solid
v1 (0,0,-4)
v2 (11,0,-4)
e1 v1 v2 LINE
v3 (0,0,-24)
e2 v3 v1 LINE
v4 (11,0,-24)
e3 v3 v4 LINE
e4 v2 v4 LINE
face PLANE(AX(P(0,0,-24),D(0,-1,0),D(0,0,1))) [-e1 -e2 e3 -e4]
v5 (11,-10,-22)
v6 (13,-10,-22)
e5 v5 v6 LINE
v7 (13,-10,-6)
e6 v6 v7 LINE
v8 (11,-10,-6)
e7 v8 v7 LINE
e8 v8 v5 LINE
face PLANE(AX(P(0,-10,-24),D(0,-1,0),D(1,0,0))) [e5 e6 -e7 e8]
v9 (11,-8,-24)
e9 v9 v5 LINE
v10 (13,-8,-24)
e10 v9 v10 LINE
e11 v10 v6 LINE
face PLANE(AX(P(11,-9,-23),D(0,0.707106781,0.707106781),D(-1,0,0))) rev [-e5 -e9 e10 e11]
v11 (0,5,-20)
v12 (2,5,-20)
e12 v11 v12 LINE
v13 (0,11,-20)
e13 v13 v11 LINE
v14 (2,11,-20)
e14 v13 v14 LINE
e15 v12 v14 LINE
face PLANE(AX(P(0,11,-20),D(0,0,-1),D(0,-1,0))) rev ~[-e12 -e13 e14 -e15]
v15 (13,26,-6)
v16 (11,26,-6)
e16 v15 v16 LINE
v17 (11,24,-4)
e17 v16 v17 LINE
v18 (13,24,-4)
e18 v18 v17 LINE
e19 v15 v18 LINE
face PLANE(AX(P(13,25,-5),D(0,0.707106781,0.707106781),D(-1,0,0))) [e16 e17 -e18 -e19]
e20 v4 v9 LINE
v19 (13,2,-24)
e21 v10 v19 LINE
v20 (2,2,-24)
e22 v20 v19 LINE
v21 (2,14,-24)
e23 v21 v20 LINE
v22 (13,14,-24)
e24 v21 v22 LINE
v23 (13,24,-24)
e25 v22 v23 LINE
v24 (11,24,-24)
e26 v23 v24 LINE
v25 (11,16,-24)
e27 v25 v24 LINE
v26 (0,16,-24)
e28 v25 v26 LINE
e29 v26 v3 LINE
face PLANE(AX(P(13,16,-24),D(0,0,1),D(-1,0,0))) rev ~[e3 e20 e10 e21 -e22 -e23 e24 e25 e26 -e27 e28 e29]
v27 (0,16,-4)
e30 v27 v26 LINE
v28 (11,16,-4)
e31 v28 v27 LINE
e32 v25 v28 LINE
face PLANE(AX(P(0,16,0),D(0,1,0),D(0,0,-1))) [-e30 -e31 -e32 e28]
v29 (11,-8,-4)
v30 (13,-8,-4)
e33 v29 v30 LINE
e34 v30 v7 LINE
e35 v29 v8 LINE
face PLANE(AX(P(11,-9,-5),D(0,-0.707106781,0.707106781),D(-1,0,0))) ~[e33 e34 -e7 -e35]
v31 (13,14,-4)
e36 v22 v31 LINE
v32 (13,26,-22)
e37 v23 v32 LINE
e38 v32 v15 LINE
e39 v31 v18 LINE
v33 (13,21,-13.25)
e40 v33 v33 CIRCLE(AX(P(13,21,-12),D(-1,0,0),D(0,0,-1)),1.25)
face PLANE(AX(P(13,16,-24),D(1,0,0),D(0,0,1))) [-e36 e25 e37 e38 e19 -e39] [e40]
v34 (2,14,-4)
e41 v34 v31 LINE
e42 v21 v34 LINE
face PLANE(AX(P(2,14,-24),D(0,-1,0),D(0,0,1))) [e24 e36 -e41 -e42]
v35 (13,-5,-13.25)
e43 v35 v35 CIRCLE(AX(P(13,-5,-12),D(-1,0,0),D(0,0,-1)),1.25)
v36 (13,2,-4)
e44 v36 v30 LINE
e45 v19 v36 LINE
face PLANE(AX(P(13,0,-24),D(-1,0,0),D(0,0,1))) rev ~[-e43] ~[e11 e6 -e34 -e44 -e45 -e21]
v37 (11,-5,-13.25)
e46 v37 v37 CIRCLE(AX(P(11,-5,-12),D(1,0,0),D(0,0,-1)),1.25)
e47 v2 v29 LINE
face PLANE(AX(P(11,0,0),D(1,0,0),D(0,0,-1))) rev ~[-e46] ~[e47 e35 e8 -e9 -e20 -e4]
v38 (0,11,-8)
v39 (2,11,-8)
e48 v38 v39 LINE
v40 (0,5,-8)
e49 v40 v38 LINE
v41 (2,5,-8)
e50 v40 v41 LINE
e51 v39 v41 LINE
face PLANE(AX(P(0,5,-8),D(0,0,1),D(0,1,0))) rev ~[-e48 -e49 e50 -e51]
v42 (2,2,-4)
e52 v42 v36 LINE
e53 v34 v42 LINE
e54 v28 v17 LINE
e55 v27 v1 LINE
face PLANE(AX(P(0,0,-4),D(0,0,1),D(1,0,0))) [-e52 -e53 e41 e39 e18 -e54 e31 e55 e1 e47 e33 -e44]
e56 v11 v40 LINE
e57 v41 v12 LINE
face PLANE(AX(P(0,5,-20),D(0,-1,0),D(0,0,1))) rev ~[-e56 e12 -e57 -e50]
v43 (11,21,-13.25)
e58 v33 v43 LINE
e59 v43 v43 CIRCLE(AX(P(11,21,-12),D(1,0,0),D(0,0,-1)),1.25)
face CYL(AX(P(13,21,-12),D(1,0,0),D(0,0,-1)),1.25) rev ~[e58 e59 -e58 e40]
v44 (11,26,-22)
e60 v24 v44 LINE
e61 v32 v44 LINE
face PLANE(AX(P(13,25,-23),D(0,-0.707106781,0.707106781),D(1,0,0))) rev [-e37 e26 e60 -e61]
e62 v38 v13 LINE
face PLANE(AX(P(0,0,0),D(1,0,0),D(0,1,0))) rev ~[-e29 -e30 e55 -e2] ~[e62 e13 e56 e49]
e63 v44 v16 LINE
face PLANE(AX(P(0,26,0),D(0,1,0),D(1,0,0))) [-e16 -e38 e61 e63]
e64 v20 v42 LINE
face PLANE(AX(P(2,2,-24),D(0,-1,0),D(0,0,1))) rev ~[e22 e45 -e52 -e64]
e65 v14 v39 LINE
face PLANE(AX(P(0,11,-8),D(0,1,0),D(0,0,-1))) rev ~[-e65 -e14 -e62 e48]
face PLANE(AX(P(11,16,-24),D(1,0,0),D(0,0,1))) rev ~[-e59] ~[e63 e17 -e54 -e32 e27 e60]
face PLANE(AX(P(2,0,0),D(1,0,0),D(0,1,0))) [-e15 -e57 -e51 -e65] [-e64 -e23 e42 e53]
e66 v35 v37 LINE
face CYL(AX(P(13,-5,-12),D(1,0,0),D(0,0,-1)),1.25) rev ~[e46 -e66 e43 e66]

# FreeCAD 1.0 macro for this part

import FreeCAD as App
import Part
import Sketcher

V = App.Vector
Q = App.Units.Quantity


def edges_at(feature, points):
    """Names of the edges that pass closest to the given points."""
    edges = feature.Shape.Edges
    near = lambda p: min(range(len(edges)), key=lambda i: edges[i].distToShape(Part.Vertex(*p))[0])
    return sorted({f"Edge{near(p) + 1}" for p in points})


def add_polygon(sketch, points):
    """Adds a closed chain of lines whose ends are joined by coincident constraints."""
    first, n = sketch.GeometryCount, len(points)
    for a, b in zip(points, points[1:] + points[:1]):
        sketch.addGeometry(Part.LineSegment(App.Vector(*a, 0), App.Vector(*b, 0)), False)
    for i in range(n):
        sketch.addConstraint(Sketcher.Constraint("Coincident", first + i, 2, first + (i + 1) % n, 1))

doc = App.newDocument("Part")
params = doc.addObject("Spreadsheet::Sheet", "Params")
for row, (alias, value) in enumerate([
    ("sketch1_width", "16 mm"),
    ("sketch1_height", "24 mm"),
    ("pad1_length", "2 mm"),
    ("sketch2_width", "2 mm"),
    ("sketch2_height", "24 mm"),
    ("pad2_length", "11 mm"),
    ("sketch3_width", "2 mm"),
    ("sketch3_height", "24 mm"),
    ("pad3_length", "10 mm"),
    ("sketch4_width", "2 mm"),
    ("sketch4_height", "24 mm"),
    ("pad4_length", "10 mm"),
    ("sketch5_diameter", "2.5 mm"),
    ("pocket1_length", "10 mm"),
    ("sketch6_width", "6 mm"),
    ("sketch6_height", "12 mm"),
    ("pocket2_length", "10 mm"),
    ("sketch7_width", "2 mm"),
    ("sketch7_width2", "11 mm"),
    ("sketch7_height", "10 mm"),
    ("sketch7_height2", "12 mm"),
    ("pocket3_length", "4 mm"),
    ("chamfer_size", "2 mm"),
    ("chamfer2_size", "2 mm"),
], start=1):
    params.set(f"A{row}", alias)
    params.set(f"B{row}", "=" + value)
    params.setAlias(f"B{row}", alias)

body = doc.addObject("PartDesign::Body", "Body")

sketch1 = doc.addObject("Sketcher::SketchObject", "Sketch")
body.addObject(sketch1)
sketch1.AttachmentSupport = (doc.YZ_Plane, [""])
sketch1.MapMode = "FlatFace"
add_polygon(sketch1, [(16, 0), (0, 0), (0, -24), (16, -24)])
sketch1.addConstraint([
    Sketcher.Constraint("Horizontal", 0),
    Sketcher.Constraint("Vertical", 1),
    Sketcher.Constraint("Horizontal", 2),
    Sketcher.Constraint("Vertical", 3),
    Sketcher.Constraint("Coincident", 0, 2, -1, 1),
    Sketcher.Constraint("DistanceX", 0, 2, 0, 1, Q("16 mm")),
    Sketcher.Constraint("DistanceY", 1, 2, 1, 1, Q("24 mm")),
])
sketch1.setExpression("Constraints[9]", "Params.sketch1_width")
sketch1.setExpression("Constraints[10]", "Params.sketch1_height")
pad1 = doc.addObject("PartDesign::Pad", "Pad")
body.addObject(pad1)
pad1.Profile = sketch1
pad1.setExpression("Length", "Params.pad1_length")

sketch2 = doc.addObject("Sketcher::SketchObject", "Sketch001")
body.addObject(sketch2)
sketch2.AttachmentSupport = (doc.YZ_Plane, [""])
sketch2.MapMode = "FlatFace"
sketch2.AttachmentOffset = App.Placement(V(0, 0, 2), App.Rotation())
add_polygon(sketch2, [(14, -24), (16, -24), (16, 0), (14, 0)])
add_polygon(sketch2, [(2, -24), (2, 0), (0, 0), (0, -24)])
sketch2.addConstraint([
    Sketcher.Constraint("Horizontal", 0),
    Sketcher.Constraint("Vertical", 1),
    Sketcher.Constraint("Horizontal", 2),
    Sketcher.Constraint("Vertical", 3),
    Sketcher.Constraint("Vertical", 4),
    Sketcher.Constraint("Horizontal", 5),
    Sketcher.Constraint("Vertical", 6),
    Sketcher.Constraint("Horizontal", 7),
    Sketcher.Constraint("Coincident", 5, 2, -1, 1),
    Sketcher.Constraint("PointOnObject", 1, 2, -1),
    Sketcher.Constraint("Horizontal", 3, 2, 6, 2),
    Sketcher.Constraint("Equal", 2, 5),
    Sketcher.Constraint("DistanceX", 0, 1, 0, 2, Q("2 mm")),
    Sketcher.Constraint("DistanceY", 1, 1, 1, 2, Q("24 mm")),
    Sketcher.Constraint("DistanceX", -1, 1, 0, 2, Q("16 mm")),
])
sketch2.setExpression("Constraints[20]", "Params.sketch2_width")
sketch2.setExpression("Constraints[21]", "Params.sketch2_height")
pad2 = doc.addObject("PartDesign::Pad", "Pad001")
body.addObject(pad2)
pad2.Profile = sketch2
pad2.setExpression("Length", "Params.pad2_length")

sketch3 = doc.addObject("Sketcher::SketchObject", "Sketch002")
body.addObject(sketch3)
sketch3.AttachmentSupport = (doc.XZ_Plane, [""])
sketch3.MapMode = "FlatFace"
add_polygon(sketch3, [(13, -24), (13, 0), (11, 0), (11, -24)])
sketch3.addConstraint([
    Sketcher.Constraint("Vertical", 0),
    Sketcher.Constraint("Horizontal", 1),
    Sketcher.Constraint("Vertical", 2),
    Sketcher.Constraint("Horizontal", 3),
    Sketcher.Constraint("PointOnObject", 0, 2, -1),
    Sketcher.Constraint("DistanceX", 1, 2, 1, 1, Q("2 mm")),
    Sketcher.Constraint("DistanceY", 0, 1, 0, 2, Q("24 mm")),
    Sketcher.Constraint("DistanceX", -1, 1, 0, 2, Q("13 mm")),
])
sketch3.setExpression("Constraints[9]", "Params.sketch3_width")
sketch3.setExpression("Constraints[10]", "Params.sketch3_height")
pad3 = doc.addObject("PartDesign::Pad", "Pad002")
body.addObject(pad3)
pad3.Profile = sketch3
pad3.setExpression("Length", "Params.pad3_length")

sketch4 = doc.addObject("Sketcher::SketchObject", "Sketch003")
body.addObject(sketch4)
sketch4.AttachmentSupport = (doc.XZ_Plane, [""])
sketch4.MapMode = "FlatFace"
sketch4.AttachmentOffset = App.Placement(V(0, 0, -16), App.Rotation())
add_polygon(sketch4, [(13, 0), (13, -24), (11, -24), (11, 0)])
sketch4.addConstraint([
    Sketcher.Constraint("Vertical", 0),
    Sketcher.Constraint("Horizontal", 1),
    Sketcher.Constraint("Vertical", 2),
    Sketcher.Constraint("Horizontal", 3),
    Sketcher.Constraint("PointOnObject", 2, 2, -1),
    Sketcher.Constraint("DistanceX", 1, 2, 1, 1, Q("2 mm")),
    Sketcher.Constraint("DistanceY", 0, 2, 0, 1, Q("24 mm")),
    Sketcher.Constraint("DistanceX", -1, 1, 0, 2, Q("13 mm")),
])
sketch4.setExpression("Constraints[9]", "Params.sketch4_width")
sketch4.setExpression("Constraints[10]", "Params.sketch4_height")
pad4 = doc.addObject("PartDesign::Pad", "Pad003")
body.addObject(pad4)
pad4.Profile = sketch4
pad4.setExpression("Length", "Params.pad4_length")
pad4.Reversed = True

sketch5 = doc.addObject("Sketcher::SketchObject", "Sketch004")
body.addObject(sketch5)
sketch5.AttachmentSupport = (doc.YZ_Plane, [""])
sketch5.MapMode = "FlatFace"
sketch5.AttachmentOffset = App.Placement(V(0, 0, 13), App.Rotation())
sketch5.addGeometry([
    Part.Circle(V(-5, -12, 0), V(0, 0, 1), 1.2),
    Part.Circle(V(21, -12, 0), V(0, 0, 1), 1.2),
], False)
sketch5.addConstraint([
    Sketcher.Constraint("Equal", 0, 1),
    Sketcher.Constraint("Horizontal", 0, 3, 1, 3),
    Sketcher.Constraint("Diameter", 0, Q("2.5 mm")),
    Sketcher.Constraint("DistanceX", 0, 3, -1, 1, Q("5 mm")),
    Sketcher.Constraint("DistanceY", 0, 3, -1, 1, Q("12 mm")),
    Sketcher.Constraint("DistanceX", -1, 1, 1, 3, Q("21 mm")),
])
sketch5.setExpression("Constraints[2]", "Params.sketch5_diameter")
pocket1 = doc.addObject("PartDesign::Pocket", "Pocket")
body.addObject(pocket1)
pocket1.Profile = sketch5
pocket1.setExpression("Length", "Params.pocket1_length")

sketch6 = doc.addObject("Sketcher::SketchObject", "Sketch005")
body.addObject(sketch6)
sketch6.AttachmentSupport = (doc.YZ_Plane, [""])
sketch6.MapMode = "FlatFace"
add_polygon(sketch6, [(11, -20), (5, -20), (5, -8), (11, -8)])
sketch6.addConstraint([
    Sketcher.Constraint("Horizontal", 0),
    Sketcher.Constraint("Vertical", 1),
    Sketcher.Constraint("Horizontal", 2),
    Sketcher.Constraint("Vertical", 3),
    Sketcher.Constraint("DistanceX", 0, 2, 0, 1, Q("6 mm")),
    Sketcher.Constraint("DistanceY", 1, 1, 1, 2, Q("12 mm")),
    Sketcher.Constraint("DistanceX", -1, 1, 0, 2, Q("5 mm")),
    Sketcher.Constraint("DistanceY", 0, 2, -1, 1, Q("20 mm")),
])
sketch6.setExpression("Constraints[8]", "Params.sketch6_width")
sketch6.setExpression("Constraints[9]", "Params.sketch6_height")
pocket2 = doc.addObject("PartDesign::Pocket", "Pocket001")
body.addObject(pocket2)
pocket2.Profile = sketch6
pocket2.setExpression("Length", "Params.pocket2_length")
pocket2.Reversed = True

sketch7 = doc.addObject("Sketcher::SketchObject", "Sketch006")
body.addObject(sketch7)
sketch7.AttachmentSupport = (doc.XY_Plane, [""])
sketch7.MapMode = "FlatFace"
add_polygon(sketch7, [(11, 0), (11, -10), (13, -10), (13, 2), (2, 2), (2, 14), (13, 14), (13, 26), (11, 26), (11, 16), (0, 16), (0, 0)])
sketch7.addConstraint([
    Sketcher.Constraint("Vertical", 0),
    Sketcher.Constraint("Horizontal", 1),
    Sketcher.Constraint("Vertical", 2),
    Sketcher.Constraint("Horizontal", 3),
    Sketcher.Constraint("Vertical", 4),
    Sketcher.Constraint("Horizontal", 5),
    Sketcher.Constraint("Vertical", 6),
    Sketcher.Constraint("Horizontal", 7),
    Sketcher.Constraint("Vertical", 8),
    Sketcher.Constraint("Horizontal", 9),
    Sketcher.Constraint("Vertical", 10),
    Sketcher.Constraint("Horizontal", 11),
    Sketcher.Constraint("Coincident", 10, 2, -1, 1),
    Sketcher.Constraint("Vertical", 2, 2, 5, 2),
    Sketcher.Constraint("Vertical", 0, 2, 7, 2),
    Sketcher.Constraint("Equal", 5, 9),
    Sketcher.Constraint("Equal", 2, 4),
    Sketcher.Constraint("Equal", 4, 6),
    Sketcher.Constraint("Equal", 0, 8),
    Sketcher.Constraint("DistanceX", 1, 1, 1, 2, Q("2 mm")),
    Sketcher.Constraint("DistanceX", 3, 2, 3, 1, Q("11 mm")),
    Sketcher.Constraint("DistanceY", 0, 2, 0, 1, Q("10 mm")),
    Sketcher.Constraint("DistanceY", 2, 1, 2, 2, Q("12 mm")),
])
sketch7.setExpression("Constraints[31]", "Params.sketch7_width")
sketch7.setExpression("Constraints[32]", "Params.sketch7_width2")
sketch7.setExpression("Constraints[33]", "Params.sketch7_height")
sketch7.setExpression("Constraints[34]", "Params.sketch7_height2")
pocket3 = doc.addObject("PartDesign::Pocket", "Pocket002")
body.addObject(pocket3)
pocket3.Profile = sketch7
pocket3.setExpression("Length", "Params.pocket3_length")
doc.recompute()

chamfer = doc.addObject("PartDesign::Chamfer", "Chamfer")
body.addObject(chamfer)
chamfer.Base = (pocket3, edges_at(pocket3, [(12, -10, -24), (12, 26, -24)]))
chamfer.setExpression("Size", "Params.chamfer_size")
doc.recompute()

chamfer2 = doc.addObject("PartDesign::Chamfer", "Chamfer001")
body.addObject(chamfer2)
chamfer2.Base = (chamfer, edges_at(chamfer, [(12, -10, -4), (12, 26, -4)]))
chamfer2.setExpression("Size", "Params.chamfer2_size")

doc.recompute()
